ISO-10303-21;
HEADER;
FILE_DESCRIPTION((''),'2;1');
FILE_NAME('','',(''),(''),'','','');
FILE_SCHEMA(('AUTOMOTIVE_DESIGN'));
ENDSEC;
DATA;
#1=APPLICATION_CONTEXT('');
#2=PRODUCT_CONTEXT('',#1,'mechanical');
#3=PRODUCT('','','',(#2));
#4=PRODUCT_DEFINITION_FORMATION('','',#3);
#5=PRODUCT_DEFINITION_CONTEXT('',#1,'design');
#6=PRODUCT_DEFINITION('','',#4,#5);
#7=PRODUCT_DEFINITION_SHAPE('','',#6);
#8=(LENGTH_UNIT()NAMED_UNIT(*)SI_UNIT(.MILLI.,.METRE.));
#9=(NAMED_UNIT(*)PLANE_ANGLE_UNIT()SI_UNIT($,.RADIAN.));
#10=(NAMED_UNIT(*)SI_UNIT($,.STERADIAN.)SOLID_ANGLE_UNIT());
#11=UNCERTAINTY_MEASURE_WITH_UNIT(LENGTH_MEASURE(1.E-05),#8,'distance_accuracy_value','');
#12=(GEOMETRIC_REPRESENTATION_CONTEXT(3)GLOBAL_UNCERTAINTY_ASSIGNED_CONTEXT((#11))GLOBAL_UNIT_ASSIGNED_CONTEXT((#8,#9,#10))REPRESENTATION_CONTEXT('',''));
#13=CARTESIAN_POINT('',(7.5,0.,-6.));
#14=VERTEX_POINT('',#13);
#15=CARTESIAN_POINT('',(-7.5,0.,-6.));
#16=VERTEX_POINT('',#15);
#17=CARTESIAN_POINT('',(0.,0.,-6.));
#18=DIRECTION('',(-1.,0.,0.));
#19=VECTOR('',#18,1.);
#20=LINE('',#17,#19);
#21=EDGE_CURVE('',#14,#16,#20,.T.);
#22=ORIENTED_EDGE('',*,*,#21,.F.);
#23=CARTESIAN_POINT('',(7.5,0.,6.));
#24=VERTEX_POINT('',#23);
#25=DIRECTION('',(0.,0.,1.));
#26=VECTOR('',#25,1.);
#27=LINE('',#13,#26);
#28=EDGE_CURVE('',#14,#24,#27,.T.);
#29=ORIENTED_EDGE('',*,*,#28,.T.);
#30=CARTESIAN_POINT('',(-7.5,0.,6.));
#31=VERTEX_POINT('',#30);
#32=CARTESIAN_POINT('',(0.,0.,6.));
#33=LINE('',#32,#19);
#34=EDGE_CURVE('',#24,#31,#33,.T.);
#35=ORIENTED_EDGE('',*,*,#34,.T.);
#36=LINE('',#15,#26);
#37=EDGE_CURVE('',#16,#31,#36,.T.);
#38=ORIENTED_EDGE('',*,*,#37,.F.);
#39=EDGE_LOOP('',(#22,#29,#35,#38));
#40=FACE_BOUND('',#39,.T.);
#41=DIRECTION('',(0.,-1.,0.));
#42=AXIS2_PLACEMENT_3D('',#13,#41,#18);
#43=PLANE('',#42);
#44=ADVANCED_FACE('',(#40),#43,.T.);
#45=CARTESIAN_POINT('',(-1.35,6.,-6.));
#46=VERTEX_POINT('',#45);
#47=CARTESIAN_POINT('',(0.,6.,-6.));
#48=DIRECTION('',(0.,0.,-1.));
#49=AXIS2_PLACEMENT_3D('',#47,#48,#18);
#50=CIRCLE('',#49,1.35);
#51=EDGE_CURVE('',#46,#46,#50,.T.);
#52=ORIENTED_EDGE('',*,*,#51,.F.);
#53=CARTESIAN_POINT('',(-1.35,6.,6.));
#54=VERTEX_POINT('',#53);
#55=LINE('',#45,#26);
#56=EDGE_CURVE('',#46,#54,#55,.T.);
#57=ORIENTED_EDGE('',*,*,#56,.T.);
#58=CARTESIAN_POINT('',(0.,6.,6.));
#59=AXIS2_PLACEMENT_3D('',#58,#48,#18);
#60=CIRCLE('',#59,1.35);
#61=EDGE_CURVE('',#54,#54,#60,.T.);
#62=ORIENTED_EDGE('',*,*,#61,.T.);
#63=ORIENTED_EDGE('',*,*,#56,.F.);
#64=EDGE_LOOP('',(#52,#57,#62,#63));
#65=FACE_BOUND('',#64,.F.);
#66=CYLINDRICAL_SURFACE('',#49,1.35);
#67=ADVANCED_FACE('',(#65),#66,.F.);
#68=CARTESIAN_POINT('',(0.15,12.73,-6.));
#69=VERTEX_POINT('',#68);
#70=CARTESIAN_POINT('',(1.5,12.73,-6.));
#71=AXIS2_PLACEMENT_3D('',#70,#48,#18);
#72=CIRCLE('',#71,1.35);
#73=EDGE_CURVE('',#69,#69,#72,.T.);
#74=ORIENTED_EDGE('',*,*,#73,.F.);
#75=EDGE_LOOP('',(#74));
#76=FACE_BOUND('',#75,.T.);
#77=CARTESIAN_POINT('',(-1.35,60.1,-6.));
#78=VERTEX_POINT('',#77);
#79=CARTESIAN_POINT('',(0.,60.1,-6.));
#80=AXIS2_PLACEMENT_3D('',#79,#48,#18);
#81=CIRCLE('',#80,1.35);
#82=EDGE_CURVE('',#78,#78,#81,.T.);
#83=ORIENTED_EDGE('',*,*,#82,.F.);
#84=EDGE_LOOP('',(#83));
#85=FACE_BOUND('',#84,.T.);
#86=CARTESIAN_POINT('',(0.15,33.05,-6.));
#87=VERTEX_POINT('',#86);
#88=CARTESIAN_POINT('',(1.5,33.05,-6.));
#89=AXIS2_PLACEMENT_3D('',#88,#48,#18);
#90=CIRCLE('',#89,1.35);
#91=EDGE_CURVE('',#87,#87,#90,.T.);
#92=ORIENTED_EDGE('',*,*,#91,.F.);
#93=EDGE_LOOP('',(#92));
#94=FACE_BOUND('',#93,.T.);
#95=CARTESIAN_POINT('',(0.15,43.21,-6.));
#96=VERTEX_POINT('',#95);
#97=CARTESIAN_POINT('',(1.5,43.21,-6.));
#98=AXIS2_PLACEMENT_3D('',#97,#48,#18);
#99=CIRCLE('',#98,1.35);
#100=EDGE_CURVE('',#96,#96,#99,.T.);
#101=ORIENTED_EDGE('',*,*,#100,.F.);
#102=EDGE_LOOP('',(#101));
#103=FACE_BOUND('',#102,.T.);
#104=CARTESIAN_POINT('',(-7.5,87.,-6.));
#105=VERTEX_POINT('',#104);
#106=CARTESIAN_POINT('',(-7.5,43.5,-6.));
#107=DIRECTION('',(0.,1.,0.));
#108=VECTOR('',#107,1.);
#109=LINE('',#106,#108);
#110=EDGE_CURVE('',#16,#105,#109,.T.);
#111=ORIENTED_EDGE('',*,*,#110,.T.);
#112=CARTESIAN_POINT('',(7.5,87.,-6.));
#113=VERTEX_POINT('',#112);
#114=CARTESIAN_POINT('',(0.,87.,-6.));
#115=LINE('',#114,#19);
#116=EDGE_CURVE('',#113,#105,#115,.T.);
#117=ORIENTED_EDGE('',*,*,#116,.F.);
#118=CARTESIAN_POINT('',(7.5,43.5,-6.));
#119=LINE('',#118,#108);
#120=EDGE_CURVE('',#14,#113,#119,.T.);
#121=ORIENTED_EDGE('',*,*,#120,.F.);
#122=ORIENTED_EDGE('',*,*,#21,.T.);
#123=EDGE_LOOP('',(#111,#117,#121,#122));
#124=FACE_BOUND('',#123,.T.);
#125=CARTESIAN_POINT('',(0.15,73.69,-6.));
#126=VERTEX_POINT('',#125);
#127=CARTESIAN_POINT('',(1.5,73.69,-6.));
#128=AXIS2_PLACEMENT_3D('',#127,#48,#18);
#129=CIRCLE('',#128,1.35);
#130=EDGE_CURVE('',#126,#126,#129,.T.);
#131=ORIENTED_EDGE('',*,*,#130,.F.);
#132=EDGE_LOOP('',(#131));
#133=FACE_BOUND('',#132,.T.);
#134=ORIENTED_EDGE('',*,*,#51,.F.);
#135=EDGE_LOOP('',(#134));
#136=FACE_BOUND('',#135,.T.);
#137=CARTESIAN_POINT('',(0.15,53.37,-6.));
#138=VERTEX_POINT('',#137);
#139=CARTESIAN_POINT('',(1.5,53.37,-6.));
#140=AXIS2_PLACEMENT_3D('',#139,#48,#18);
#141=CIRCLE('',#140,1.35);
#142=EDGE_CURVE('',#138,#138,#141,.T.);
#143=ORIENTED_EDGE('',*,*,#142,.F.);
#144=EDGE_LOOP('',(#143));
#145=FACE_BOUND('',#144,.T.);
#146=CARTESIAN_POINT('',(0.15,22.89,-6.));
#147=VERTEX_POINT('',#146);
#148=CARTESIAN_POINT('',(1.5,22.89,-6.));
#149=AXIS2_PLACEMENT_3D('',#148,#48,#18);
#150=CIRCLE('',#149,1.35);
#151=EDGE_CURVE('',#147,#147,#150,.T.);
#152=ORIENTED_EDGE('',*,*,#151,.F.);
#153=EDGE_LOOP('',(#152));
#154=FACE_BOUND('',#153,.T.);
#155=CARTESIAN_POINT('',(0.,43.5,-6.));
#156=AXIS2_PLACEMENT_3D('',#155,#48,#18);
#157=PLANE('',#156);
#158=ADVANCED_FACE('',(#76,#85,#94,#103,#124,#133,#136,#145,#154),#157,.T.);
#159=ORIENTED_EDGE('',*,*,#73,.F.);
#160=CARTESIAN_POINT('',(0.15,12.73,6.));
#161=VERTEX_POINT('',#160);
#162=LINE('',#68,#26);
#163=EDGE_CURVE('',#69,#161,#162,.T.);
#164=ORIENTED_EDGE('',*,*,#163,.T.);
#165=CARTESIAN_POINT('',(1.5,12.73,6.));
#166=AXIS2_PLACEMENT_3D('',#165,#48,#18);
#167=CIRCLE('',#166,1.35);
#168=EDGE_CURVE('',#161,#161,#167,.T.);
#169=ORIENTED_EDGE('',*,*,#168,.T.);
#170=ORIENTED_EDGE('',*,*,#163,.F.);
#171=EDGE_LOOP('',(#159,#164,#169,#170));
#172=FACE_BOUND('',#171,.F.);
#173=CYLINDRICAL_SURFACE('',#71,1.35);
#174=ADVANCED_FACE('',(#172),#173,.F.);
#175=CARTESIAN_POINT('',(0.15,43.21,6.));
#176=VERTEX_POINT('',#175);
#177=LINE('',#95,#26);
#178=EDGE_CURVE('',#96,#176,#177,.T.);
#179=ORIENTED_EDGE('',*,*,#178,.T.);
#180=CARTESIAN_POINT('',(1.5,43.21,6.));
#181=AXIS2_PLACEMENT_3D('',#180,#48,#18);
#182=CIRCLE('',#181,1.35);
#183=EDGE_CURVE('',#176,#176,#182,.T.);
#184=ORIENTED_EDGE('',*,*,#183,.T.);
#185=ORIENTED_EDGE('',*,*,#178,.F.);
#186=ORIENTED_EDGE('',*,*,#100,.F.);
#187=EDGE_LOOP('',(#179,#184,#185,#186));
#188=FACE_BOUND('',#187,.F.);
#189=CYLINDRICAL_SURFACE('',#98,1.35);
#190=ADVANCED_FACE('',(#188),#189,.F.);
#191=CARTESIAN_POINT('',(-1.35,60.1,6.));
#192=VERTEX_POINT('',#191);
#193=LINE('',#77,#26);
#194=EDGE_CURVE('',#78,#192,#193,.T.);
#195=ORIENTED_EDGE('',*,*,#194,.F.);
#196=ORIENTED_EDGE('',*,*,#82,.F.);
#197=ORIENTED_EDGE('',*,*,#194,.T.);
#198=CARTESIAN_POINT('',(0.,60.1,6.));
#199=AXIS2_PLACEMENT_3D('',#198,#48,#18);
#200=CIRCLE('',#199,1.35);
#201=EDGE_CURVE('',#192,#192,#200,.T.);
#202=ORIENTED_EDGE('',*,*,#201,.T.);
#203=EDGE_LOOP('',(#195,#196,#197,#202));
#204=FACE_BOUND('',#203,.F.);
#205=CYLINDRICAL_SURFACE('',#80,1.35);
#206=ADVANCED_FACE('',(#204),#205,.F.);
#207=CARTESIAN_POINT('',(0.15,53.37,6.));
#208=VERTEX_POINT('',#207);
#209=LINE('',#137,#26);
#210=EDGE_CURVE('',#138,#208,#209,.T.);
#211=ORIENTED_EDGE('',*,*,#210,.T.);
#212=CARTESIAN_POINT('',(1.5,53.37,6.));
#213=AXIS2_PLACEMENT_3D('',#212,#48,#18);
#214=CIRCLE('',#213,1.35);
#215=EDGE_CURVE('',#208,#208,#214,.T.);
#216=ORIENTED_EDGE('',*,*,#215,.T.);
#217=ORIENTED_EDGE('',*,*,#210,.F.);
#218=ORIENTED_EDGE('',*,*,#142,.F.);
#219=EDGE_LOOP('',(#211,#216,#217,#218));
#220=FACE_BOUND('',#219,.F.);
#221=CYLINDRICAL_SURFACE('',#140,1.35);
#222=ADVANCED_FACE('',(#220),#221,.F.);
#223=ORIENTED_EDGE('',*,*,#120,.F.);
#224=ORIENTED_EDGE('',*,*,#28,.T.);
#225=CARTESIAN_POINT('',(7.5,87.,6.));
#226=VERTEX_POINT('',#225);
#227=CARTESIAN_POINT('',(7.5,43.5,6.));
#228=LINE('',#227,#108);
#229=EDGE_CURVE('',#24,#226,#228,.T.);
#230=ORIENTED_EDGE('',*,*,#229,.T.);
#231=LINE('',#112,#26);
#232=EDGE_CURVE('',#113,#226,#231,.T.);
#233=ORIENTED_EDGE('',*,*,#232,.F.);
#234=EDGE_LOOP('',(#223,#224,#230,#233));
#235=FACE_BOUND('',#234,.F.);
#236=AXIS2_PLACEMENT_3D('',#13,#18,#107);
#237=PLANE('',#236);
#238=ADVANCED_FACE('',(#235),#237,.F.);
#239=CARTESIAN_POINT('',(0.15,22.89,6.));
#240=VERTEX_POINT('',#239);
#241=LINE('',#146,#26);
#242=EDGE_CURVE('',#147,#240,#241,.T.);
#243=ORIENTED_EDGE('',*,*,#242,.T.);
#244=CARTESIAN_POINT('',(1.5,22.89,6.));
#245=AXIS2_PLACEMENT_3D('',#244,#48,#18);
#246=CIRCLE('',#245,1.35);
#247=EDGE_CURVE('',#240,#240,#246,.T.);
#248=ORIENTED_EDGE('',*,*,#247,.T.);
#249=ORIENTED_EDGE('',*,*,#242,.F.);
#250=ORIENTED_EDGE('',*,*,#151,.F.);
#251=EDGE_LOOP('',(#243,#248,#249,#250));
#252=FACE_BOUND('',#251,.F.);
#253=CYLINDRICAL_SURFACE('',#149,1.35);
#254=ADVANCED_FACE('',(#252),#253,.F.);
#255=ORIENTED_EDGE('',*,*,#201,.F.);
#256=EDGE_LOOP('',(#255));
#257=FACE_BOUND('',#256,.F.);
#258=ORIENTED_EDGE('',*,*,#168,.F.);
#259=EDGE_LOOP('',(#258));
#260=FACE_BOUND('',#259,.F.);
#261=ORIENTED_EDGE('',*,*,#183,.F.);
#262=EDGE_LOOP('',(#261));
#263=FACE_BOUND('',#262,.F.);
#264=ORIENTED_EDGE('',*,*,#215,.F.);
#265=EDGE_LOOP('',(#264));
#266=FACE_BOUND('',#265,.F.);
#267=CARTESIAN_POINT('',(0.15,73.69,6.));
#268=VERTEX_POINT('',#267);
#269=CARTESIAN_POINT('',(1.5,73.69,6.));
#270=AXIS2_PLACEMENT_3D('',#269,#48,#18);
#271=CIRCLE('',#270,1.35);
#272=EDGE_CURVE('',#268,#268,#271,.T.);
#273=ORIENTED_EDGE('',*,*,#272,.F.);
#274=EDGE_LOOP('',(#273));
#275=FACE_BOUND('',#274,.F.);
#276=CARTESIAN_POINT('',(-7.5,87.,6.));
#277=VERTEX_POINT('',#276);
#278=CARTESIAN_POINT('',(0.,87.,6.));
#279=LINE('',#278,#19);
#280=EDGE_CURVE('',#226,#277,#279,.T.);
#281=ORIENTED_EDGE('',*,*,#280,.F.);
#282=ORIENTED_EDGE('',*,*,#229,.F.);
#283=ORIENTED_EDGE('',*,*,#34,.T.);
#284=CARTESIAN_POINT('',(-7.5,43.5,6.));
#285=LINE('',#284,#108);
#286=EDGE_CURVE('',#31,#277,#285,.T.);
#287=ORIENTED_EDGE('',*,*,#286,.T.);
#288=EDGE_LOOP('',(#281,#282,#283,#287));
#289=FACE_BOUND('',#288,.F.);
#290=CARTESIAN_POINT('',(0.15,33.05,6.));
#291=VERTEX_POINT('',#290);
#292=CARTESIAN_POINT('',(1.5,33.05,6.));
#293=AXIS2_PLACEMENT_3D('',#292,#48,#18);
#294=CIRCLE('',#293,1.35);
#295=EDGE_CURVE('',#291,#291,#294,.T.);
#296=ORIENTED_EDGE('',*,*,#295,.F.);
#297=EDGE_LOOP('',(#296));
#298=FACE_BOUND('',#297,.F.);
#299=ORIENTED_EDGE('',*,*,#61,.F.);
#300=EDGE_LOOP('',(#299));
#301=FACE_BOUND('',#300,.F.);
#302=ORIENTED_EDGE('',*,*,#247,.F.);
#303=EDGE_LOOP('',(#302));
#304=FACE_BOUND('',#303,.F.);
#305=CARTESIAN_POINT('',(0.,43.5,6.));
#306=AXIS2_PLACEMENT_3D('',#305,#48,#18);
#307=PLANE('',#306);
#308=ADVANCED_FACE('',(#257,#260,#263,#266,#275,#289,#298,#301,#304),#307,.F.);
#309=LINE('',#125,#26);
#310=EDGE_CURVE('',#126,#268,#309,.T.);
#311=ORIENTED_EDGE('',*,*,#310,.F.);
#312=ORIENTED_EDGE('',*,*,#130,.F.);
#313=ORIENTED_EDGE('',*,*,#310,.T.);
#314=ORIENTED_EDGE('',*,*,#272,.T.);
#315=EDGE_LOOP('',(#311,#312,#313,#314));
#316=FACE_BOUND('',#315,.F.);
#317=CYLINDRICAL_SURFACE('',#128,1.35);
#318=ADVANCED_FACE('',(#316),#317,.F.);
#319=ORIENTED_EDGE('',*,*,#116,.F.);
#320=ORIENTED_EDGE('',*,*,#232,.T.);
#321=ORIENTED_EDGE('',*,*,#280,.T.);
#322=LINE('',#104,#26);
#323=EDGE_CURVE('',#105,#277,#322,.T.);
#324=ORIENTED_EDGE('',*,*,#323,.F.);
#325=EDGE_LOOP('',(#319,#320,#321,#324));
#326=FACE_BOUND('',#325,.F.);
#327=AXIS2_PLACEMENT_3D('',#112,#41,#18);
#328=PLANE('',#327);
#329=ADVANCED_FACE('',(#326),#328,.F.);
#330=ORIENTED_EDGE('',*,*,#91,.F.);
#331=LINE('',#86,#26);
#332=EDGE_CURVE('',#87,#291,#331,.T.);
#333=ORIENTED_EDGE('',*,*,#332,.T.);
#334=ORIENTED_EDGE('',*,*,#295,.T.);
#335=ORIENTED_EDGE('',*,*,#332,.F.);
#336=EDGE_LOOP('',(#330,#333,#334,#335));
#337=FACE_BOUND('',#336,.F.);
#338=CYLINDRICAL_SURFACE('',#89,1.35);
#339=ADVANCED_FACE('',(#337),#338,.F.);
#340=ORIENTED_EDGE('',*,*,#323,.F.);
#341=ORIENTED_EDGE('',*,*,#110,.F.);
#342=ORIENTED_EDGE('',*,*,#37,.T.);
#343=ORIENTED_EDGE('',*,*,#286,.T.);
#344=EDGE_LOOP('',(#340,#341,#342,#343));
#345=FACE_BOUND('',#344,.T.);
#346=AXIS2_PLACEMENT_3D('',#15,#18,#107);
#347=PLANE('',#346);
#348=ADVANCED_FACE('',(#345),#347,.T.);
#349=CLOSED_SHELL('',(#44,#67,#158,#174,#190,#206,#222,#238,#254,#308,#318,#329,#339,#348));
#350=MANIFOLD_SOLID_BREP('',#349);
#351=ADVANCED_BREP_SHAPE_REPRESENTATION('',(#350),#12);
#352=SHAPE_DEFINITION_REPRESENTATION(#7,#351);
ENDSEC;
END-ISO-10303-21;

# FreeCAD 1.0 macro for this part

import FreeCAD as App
import Part
import Sketcher

V = App.Vector
Q = App.Units.Quantity


def add_polygon(sketch, points):
    """Adds a closed chain of lines whose ends are joined by coincident constraints."""
    first, n = sketch.GeometryCount, len(points)
    for a, b in zip(points, points[1:] + points[:1]):
        sketch.addGeometry(Part.LineSegment(App.Vector(*a, 0), App.Vector(*b, 0)), False)
    for i in range(n):
        sketch.addConstraint(Sketcher.Constraint("Coincident", first + i, 2, first + (i + 1) % n, 1))

doc = App.newDocument("Part")
body = doc.addObject("PartDesign::Body", "Body")

sketch1 = body.newObject("Sketcher::SketchObject", "Sketch")
sketch1.AttachmentSupport = (doc.getObject("XY_Plane"), [""])
sketch1.MapMode = "FlatFace"
sketch1.AttachmentOffset = App.Placement(V(0, 0, -6), App.Rotation())
add_polygon(sketch1, [(7.5, 87), (7.5, 0), (-7.5, 0), (-7.5, 87)])
sketch1.addGeometry(Part.Circle(V(1.5, 12.7, 0), V(0, 0, 1), 1.4), False)
sketch1.addGeometry(Part.Circle(V(1.5, 22.9, 0), V(0, 0, 1), 1.4), False)
sketch1.addGeometry(Part.Circle(V(1.5, 33, 0), V(0, 0, 1), 1.4), False)
sketch1.addGeometry(Part.Circle(V(0, 6, 0), V(0, 0, 1), 1.4), False)
sketch1.addGeometry(Part.Circle(V(1.5, 43.2, 0), V(0, 0, 1), 1.4), False)
sketch1.addGeometry(Part.Circle(V(1.5, 53.4, 0), V(0, 0, 1), 1.4), False)
sketch1.addGeometry(Part.Circle(V(1.5, 73.7, 0), V(0, 0, 1), 1.4), False)
sketch1.addGeometry(Part.Circle(V(0, 60.1, 0), V(0, 0, 1), 1.4), False)
sketch1.addConstraint([
    Sketcher.Constraint("Vertical", 0),
    Sketcher.Constraint("Horizontal", 1),
    Sketcher.Constraint("Vertical", 2),
    Sketcher.Constraint("Horizontal", 3),
    Sketcher.Constraint("Equal", 4, 5),
    Sketcher.Constraint("Equal", 5, 6),
    Sketcher.Constraint("Equal", 6, 7),
    Sketcher.Constraint("Equal", 7, 8),
    Sketcher.Constraint("Equal", 8, 9),
    Sketcher.Constraint("Equal", 9, 10),
    Sketcher.Constraint("Equal", 10, 11),
    Sketcher.Constraint("Symmetric", 0, 2, 1, 2, -1, 1),
    Sketcher.Constraint("PointOnObject", 7, 3, -2),
    Sketcher.Constraint("PointOnObject", 11, 3, -2),
    Sketcher.Constraint("Vertical", 4, 3, 5, 3),
    Sketcher.Constraint("Vertical", 5, 3, 6, 3),
    Sketcher.Constraint("Vertical", 6, 3, 8, 3),
    Sketcher.Constraint("Vertical", 8, 3, 9, 3),
    Sketcher.Constraint("Vertical", 9, 3, 10, 3),
    Sketcher.Constraint("Diameter", 4, Q("2.7 mm")),
    Sketcher.Constraint("DistanceX", 1, 2, 1, 1, Q("15 mm")),
    Sketcher.Constraint("DistanceY", 0, 2, 0, 1, Q("87 mm")),
    Sketcher.Constraint("DistanceY", -1, 1, 7, 3, Q("6 mm")),
    Sketcher.Constraint("DistanceX", 4, 3, 0, 2, Q("6 mm")),
    Sketcher.Constraint("DistanceY", -1, 1, 11, 3, Q("60.1 mm")),
    Sketcher.Constraint("DistanceY", 5, 3, 10, 3, Q("50.8 mm")),
    Sketcher.Constraint("DistanceY", -1, 1, 4, 3, Q("12.73 mm")),
    Sketcher.Constraint("DistanceY", -1, 1, 5, 3, Q("22.89 mm")),
    Sketcher.Constraint("DistanceY", -1, 1, 6, 3, Q("33.05 mm")),
    Sketcher.Constraint("DistanceY", -1, 1, 8, 3, Q("43.21 mm")),
    Sketcher.Constraint("DistanceY", -1, 1, 9, 3, Q("53.37 mm")),
])
pad1 = body.newObject("PartDesign::Pad", "Pad")
pad1.Profile = sketch1
pad1.Length = 12

doc.recompute()
